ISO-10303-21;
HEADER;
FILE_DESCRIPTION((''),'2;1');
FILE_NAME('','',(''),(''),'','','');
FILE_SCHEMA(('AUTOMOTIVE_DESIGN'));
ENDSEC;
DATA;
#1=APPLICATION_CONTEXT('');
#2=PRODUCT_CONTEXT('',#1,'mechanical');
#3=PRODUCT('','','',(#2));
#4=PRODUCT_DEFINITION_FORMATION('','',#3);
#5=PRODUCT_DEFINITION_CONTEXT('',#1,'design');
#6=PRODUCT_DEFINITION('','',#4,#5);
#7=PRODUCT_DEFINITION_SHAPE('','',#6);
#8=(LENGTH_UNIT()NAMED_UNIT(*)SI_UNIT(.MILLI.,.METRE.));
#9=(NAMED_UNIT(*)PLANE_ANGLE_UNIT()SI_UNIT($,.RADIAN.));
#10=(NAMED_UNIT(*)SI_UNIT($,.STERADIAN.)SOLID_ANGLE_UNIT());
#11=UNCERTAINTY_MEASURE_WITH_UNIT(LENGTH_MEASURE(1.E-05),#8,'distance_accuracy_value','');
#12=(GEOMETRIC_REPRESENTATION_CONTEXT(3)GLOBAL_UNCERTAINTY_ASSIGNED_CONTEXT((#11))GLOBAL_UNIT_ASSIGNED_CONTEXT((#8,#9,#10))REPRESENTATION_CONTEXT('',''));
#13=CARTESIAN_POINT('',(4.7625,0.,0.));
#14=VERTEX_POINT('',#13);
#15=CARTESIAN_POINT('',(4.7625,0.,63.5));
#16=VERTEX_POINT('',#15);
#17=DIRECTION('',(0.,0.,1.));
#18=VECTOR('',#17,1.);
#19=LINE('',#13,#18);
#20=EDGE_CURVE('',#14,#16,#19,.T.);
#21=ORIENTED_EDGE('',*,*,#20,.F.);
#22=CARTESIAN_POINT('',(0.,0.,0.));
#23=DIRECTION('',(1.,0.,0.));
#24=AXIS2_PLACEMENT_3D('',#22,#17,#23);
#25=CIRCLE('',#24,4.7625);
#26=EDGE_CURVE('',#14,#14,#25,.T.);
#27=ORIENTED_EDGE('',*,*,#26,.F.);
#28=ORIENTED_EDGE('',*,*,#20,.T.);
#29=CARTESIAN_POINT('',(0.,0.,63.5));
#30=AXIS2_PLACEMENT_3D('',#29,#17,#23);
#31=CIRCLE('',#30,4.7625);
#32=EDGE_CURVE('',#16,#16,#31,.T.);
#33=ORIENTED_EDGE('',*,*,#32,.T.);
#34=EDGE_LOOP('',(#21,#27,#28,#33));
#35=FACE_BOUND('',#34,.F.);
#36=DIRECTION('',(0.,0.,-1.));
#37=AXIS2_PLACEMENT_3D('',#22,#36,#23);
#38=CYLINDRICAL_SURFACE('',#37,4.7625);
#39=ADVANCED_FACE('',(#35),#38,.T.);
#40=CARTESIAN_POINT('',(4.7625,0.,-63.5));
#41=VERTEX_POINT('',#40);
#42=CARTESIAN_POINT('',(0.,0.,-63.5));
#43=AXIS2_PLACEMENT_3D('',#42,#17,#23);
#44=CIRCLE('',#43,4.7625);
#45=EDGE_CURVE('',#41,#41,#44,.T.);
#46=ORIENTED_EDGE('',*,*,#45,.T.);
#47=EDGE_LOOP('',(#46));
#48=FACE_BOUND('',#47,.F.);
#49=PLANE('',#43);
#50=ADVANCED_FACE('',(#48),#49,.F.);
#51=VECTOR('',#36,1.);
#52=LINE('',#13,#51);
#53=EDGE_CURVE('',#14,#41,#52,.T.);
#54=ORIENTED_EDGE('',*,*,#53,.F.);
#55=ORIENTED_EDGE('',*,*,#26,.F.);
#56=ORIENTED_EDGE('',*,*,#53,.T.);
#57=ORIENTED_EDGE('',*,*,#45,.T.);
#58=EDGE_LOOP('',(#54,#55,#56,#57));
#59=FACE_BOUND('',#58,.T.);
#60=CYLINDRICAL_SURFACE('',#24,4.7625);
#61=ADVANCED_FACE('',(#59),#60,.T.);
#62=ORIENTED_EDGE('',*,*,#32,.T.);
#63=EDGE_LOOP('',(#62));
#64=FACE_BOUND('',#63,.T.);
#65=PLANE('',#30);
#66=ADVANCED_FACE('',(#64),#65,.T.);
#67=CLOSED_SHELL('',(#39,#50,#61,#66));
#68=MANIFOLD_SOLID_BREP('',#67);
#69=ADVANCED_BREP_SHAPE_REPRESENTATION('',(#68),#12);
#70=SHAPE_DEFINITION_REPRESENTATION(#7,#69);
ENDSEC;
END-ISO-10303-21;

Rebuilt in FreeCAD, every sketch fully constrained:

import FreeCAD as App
import Part
import Sketcher
Q = App.Units.Quantity

doc = App.newDocument("Part")
body = doc.addObject("PartDesign::Body", "Body")

# Sketch on XY plane
sketch1 = body.newObject("Sketcher::SketchObject", "Sketch")
sketch1.AttachmentSupport = (doc.getObject("XY_Plane"), [""])
sketch1.MapMode = "FlatFace"
sketch1.addGeometry(Part.Circle(App.Vector(0, 0, 0), App.Vector(0, 0, 1), 4.7625), False)
sketch1.addConstraint([
    Sketcher.Constraint("Coincident", 0, 3, -1, 1),
    Sketcher.Constraint("Diameter", 0, Q("0.375 in")),
])
pad1 = body.newObject("PartDesign::Pad", "Pad")
pad1.Profile = sketch1
pad1.Length = Q("5 in")
pad1.Midplane = True

doc.recompute()
